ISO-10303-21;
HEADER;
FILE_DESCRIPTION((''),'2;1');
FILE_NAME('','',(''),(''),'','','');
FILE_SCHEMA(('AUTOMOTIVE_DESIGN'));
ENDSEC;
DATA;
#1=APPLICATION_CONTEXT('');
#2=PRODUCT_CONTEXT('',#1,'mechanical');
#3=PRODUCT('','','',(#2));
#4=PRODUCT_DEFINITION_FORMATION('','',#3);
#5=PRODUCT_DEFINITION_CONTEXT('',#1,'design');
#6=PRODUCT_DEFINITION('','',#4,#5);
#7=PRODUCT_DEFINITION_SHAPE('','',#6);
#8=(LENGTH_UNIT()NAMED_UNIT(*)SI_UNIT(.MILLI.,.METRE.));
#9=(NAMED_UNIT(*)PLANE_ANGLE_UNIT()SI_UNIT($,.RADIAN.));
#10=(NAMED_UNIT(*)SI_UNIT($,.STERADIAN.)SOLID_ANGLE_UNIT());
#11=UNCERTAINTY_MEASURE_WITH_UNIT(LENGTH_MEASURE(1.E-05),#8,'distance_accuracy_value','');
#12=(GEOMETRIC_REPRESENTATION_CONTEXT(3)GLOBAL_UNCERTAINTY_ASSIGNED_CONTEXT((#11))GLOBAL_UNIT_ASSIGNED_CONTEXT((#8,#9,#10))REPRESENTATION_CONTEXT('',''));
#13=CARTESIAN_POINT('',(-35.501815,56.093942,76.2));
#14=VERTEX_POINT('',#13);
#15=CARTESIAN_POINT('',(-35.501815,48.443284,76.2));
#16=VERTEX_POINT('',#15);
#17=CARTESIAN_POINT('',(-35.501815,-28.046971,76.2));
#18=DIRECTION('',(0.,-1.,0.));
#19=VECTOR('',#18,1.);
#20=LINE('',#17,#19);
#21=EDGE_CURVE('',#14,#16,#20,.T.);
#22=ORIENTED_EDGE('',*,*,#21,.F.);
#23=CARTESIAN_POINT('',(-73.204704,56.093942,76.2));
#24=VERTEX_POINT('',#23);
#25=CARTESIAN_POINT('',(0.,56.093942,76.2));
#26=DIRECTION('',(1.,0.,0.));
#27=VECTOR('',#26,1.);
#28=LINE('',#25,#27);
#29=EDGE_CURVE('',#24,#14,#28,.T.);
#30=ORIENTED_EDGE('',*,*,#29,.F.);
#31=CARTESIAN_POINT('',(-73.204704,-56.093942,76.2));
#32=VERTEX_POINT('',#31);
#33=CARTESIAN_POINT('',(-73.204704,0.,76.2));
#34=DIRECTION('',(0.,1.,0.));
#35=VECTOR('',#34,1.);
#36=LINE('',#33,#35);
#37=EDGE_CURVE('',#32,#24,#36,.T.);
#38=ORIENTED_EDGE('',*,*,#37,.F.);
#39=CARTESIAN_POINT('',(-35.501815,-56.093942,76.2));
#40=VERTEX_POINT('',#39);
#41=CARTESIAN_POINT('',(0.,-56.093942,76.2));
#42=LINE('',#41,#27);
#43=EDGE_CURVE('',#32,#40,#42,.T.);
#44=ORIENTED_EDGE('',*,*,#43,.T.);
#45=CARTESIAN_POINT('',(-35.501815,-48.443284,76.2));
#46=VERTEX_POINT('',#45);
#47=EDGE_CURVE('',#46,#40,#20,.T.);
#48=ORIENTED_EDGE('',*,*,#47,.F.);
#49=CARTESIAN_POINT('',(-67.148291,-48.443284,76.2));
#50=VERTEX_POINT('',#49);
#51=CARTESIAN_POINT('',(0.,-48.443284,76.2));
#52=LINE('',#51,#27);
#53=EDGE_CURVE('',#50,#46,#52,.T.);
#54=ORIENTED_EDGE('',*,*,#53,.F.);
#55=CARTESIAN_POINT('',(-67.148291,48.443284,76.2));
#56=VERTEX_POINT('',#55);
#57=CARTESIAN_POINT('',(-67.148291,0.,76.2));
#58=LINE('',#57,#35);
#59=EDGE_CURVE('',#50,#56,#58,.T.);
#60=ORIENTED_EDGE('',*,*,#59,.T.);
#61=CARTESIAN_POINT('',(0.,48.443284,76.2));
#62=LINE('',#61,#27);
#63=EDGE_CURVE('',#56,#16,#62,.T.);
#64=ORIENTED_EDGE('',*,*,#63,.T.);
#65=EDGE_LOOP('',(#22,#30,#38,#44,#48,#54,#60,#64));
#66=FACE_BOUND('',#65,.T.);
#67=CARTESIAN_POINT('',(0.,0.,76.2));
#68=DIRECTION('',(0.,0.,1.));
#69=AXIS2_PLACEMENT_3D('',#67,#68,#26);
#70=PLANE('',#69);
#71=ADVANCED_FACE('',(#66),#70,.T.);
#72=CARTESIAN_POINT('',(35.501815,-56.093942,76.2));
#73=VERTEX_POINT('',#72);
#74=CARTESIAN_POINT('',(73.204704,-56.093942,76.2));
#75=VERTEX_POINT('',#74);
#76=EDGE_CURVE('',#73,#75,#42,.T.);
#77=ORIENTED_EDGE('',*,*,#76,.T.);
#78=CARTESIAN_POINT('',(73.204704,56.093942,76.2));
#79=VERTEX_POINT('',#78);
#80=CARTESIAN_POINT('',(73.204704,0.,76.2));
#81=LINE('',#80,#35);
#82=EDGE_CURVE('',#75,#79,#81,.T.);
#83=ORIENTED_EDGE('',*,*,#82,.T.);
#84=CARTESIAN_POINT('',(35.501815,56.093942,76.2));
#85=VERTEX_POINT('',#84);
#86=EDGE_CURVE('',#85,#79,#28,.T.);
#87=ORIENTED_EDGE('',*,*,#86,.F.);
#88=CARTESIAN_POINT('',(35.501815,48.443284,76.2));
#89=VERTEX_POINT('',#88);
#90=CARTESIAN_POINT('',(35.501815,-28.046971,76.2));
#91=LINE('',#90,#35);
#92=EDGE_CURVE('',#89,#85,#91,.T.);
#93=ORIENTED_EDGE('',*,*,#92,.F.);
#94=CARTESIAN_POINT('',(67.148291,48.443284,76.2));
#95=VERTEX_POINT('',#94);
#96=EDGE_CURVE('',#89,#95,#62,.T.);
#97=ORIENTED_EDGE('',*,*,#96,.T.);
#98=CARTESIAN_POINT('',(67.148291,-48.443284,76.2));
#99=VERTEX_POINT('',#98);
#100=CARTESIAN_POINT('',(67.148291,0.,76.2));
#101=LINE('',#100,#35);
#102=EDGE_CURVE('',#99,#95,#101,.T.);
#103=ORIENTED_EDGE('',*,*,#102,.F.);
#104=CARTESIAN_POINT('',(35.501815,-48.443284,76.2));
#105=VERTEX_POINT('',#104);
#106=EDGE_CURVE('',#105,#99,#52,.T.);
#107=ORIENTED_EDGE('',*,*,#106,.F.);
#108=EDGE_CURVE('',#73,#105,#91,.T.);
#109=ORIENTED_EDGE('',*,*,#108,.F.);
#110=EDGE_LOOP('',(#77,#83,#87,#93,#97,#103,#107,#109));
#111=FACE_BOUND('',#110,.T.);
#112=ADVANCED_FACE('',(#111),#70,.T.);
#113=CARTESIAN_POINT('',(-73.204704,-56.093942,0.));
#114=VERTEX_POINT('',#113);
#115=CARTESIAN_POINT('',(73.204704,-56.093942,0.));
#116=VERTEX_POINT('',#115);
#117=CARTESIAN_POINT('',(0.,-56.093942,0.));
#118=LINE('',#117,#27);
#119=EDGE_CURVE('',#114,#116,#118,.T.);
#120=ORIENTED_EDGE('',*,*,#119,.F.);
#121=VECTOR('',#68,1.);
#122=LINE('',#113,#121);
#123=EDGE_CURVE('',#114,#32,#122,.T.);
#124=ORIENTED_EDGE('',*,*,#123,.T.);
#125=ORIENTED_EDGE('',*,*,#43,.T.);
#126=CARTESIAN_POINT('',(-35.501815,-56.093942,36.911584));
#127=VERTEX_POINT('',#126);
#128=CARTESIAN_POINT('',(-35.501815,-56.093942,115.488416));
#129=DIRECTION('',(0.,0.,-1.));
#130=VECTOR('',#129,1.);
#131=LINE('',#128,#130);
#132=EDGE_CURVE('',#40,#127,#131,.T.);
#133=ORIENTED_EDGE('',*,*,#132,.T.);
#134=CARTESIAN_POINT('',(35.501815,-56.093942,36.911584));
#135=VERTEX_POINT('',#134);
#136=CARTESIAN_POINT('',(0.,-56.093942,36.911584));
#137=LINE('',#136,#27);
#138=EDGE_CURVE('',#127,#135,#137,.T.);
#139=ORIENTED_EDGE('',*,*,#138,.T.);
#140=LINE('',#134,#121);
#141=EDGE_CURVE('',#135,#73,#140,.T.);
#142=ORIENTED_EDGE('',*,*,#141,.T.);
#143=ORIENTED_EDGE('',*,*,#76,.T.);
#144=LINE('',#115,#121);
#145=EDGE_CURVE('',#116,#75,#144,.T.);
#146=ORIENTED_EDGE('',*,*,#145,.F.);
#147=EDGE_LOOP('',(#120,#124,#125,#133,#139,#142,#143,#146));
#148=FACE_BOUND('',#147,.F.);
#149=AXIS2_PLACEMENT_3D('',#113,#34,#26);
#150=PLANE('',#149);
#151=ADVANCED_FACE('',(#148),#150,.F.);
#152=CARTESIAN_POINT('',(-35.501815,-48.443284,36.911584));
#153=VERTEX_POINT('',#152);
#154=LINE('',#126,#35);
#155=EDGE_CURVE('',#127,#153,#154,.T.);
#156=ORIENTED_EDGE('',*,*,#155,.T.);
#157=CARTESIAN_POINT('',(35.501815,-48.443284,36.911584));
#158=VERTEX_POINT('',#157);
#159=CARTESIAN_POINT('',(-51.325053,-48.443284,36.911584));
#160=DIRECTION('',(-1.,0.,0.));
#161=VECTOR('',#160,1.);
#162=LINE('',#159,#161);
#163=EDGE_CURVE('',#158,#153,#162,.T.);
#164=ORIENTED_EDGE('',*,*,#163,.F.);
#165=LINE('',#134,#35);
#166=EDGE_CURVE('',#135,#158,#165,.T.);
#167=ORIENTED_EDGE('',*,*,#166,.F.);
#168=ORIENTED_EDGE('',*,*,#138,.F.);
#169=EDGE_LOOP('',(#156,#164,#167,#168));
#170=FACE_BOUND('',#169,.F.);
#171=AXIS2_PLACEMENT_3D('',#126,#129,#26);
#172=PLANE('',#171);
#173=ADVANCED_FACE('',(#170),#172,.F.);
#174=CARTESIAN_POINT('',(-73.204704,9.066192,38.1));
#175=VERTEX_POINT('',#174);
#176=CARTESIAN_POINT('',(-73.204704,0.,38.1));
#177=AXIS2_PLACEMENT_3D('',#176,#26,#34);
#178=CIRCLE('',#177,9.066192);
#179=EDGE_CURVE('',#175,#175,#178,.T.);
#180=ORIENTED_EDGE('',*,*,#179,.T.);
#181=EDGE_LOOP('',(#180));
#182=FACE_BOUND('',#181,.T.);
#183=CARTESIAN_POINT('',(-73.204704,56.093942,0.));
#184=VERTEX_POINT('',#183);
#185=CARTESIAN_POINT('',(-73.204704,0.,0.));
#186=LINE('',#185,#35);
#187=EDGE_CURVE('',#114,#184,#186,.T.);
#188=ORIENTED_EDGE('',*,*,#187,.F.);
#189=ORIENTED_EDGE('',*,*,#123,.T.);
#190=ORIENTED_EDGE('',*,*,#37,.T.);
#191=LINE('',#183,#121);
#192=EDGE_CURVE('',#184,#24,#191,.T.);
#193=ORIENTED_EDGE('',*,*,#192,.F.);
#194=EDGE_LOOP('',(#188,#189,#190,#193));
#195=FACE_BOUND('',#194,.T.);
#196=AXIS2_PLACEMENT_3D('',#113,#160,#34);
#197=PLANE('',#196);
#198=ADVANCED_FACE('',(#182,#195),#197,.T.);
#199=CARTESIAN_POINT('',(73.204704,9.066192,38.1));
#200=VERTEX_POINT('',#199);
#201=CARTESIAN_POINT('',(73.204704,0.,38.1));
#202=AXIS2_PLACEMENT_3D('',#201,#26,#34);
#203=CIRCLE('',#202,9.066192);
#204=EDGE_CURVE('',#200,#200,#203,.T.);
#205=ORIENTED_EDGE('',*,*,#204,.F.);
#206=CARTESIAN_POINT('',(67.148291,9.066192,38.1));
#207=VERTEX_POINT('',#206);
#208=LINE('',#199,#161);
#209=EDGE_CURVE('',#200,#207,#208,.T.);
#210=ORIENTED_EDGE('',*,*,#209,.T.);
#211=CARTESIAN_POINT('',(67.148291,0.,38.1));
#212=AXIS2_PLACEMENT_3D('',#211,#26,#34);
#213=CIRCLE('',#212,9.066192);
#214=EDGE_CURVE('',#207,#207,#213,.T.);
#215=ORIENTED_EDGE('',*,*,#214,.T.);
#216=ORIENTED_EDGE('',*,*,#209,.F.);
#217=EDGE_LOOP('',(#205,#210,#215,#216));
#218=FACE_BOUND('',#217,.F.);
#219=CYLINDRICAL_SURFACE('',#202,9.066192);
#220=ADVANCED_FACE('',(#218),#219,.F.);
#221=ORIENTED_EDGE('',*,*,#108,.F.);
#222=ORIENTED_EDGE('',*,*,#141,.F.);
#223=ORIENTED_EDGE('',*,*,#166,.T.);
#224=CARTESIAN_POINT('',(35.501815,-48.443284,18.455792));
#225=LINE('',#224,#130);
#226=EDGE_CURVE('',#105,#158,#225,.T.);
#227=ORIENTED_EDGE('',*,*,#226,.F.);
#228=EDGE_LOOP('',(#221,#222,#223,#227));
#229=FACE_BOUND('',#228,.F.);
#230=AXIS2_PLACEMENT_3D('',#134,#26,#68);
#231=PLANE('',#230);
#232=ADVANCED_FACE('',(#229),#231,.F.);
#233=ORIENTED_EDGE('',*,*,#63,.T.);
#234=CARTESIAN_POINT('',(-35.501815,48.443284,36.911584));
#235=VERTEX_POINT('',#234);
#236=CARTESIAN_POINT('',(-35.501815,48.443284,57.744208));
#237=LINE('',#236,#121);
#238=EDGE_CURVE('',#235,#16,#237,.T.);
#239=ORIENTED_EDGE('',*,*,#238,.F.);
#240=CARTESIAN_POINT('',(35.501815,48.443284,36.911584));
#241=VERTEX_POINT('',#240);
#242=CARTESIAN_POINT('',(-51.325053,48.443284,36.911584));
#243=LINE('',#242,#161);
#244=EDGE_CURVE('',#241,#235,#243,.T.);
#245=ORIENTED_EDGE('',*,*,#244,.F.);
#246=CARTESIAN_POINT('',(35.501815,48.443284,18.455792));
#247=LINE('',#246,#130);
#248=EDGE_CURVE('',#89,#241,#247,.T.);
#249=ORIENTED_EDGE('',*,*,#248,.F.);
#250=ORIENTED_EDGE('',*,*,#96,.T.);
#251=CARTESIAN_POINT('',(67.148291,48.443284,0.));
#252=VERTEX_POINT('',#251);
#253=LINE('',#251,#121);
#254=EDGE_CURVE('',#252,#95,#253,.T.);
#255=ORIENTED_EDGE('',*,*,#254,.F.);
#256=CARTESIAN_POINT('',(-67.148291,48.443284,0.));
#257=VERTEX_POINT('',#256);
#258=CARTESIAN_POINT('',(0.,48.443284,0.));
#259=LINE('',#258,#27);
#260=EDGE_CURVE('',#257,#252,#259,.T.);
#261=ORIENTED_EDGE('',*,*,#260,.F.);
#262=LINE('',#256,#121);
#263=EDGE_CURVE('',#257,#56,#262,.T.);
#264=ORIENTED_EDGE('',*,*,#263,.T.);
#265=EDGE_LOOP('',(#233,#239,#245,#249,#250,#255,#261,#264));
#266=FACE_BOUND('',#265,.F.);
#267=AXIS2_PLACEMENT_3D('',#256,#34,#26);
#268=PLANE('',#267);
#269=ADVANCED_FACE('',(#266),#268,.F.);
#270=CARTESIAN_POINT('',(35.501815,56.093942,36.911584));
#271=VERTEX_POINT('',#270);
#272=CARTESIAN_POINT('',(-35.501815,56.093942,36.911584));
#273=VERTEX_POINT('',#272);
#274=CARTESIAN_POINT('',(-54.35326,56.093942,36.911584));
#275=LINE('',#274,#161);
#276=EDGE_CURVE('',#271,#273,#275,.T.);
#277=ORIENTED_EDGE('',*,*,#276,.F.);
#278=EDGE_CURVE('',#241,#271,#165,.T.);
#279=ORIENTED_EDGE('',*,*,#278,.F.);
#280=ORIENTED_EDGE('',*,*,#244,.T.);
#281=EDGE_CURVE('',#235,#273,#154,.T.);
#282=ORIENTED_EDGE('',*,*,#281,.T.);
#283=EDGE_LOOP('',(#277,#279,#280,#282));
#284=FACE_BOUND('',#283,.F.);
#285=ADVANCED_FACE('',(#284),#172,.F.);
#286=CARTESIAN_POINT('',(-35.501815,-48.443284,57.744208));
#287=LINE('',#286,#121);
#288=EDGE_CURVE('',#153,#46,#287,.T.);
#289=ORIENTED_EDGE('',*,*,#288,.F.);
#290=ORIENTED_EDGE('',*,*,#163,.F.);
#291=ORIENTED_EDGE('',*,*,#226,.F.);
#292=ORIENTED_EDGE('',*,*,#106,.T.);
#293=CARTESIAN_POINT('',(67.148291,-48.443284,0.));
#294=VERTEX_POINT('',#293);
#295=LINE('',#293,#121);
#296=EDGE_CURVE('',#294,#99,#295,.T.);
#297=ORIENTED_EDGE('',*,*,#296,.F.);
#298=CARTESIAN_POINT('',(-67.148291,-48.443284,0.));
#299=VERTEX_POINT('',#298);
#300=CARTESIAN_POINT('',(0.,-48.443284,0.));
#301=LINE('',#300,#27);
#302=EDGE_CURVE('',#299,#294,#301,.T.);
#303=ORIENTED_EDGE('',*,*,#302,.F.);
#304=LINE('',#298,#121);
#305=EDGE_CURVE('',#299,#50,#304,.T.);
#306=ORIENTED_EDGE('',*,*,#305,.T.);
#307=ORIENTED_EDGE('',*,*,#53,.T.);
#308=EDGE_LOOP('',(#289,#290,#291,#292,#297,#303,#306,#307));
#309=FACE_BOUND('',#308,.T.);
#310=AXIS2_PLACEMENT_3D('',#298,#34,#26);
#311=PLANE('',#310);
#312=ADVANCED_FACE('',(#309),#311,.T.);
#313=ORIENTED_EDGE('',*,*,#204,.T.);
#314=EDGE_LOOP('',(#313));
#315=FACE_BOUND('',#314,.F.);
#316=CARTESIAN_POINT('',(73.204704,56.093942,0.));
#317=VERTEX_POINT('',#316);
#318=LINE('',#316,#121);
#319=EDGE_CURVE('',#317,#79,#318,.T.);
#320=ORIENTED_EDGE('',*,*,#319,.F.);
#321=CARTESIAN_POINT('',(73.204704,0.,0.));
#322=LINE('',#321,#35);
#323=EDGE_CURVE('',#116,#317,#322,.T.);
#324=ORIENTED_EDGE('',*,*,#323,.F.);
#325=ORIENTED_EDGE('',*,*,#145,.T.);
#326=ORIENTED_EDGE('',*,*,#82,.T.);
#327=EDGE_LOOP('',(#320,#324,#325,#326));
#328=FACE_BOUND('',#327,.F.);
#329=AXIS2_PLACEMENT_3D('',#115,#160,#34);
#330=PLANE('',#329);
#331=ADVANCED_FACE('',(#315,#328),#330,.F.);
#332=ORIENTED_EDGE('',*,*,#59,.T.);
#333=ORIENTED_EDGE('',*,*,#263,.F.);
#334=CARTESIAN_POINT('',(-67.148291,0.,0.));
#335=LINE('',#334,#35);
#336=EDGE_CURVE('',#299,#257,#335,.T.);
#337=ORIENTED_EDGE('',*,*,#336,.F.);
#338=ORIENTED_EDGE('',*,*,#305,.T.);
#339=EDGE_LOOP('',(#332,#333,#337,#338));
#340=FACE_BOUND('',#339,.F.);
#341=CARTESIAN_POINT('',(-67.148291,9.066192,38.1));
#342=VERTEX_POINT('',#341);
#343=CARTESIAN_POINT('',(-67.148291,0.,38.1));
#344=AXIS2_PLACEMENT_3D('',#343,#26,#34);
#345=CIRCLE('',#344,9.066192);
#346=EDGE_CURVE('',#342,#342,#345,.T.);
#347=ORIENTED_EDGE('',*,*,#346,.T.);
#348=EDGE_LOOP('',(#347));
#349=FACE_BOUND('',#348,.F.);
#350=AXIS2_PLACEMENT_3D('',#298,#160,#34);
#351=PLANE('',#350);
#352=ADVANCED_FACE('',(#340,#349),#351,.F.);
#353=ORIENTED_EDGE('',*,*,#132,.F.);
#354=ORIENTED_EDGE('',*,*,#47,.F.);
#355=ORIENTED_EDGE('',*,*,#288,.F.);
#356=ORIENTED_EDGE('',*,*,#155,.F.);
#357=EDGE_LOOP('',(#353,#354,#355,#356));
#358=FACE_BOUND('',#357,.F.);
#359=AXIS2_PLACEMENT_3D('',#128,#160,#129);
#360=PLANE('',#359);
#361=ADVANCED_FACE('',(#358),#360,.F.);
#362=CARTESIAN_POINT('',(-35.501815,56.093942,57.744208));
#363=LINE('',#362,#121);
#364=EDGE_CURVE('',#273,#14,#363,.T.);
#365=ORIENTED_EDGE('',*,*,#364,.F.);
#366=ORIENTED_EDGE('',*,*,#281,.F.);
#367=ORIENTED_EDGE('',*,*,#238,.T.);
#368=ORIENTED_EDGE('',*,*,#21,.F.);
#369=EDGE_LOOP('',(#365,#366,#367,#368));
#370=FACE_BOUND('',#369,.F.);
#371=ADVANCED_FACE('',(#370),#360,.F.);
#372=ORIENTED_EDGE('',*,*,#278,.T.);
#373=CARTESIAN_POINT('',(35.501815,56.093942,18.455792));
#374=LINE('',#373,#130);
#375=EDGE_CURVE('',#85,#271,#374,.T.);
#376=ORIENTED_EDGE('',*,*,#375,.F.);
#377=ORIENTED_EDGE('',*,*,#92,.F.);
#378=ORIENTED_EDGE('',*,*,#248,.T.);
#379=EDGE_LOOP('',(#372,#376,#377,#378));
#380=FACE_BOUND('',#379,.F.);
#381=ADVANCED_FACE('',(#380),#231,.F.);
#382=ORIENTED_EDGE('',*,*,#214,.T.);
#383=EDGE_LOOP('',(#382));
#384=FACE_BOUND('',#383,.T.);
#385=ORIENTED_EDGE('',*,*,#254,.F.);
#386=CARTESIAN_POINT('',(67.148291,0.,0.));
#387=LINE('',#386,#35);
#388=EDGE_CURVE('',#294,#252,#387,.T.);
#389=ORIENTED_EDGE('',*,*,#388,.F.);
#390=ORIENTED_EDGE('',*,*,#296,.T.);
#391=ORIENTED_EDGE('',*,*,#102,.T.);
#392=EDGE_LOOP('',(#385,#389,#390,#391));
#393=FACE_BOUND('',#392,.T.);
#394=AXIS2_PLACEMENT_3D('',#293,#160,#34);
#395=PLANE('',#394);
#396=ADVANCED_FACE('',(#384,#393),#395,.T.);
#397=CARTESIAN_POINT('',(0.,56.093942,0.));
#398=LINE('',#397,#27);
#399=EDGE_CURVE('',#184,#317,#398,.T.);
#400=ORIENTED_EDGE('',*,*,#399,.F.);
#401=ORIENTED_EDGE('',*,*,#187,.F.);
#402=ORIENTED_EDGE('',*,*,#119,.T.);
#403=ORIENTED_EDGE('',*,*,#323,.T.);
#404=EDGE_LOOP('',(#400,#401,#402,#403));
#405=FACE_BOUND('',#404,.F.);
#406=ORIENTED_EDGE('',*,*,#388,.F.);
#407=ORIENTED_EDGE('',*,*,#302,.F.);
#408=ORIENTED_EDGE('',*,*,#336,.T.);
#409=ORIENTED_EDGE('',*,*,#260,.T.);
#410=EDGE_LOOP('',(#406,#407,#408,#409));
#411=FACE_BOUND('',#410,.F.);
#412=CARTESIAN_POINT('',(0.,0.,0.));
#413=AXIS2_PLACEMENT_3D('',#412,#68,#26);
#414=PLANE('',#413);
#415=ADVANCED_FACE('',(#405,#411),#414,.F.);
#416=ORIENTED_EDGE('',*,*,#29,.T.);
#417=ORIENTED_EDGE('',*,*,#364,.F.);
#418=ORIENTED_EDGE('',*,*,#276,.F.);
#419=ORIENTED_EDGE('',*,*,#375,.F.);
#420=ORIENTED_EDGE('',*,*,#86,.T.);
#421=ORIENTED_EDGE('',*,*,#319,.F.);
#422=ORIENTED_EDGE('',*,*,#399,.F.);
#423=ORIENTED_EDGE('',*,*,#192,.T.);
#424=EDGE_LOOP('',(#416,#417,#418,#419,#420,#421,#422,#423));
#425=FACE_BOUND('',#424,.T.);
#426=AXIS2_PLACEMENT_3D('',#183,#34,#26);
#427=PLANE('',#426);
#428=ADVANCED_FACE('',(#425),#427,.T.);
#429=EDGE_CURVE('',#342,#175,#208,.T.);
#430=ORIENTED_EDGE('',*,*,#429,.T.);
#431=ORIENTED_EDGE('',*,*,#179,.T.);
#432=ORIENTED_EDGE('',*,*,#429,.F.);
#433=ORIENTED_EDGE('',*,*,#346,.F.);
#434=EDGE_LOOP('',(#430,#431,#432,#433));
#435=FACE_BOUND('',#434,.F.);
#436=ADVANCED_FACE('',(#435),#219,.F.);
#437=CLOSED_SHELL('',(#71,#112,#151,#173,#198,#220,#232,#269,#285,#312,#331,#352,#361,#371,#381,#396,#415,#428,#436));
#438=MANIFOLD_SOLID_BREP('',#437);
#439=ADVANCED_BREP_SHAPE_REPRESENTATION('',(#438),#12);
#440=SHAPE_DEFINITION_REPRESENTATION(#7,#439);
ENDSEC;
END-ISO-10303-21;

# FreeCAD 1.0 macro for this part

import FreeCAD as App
import Part
import Sketcher
Q = App.Units.Quantity

doc = App.newDocument("Part")
params = doc.addObject("Spreadsheet::Sheet", "Params")
for row, (alias, value) in enumerate([
    ("pad1_length", "3 in"),
], start=1):
    params.set(f"A{row}", alias)
    params.set(f"B{row}", "=" + value)
    params.setAlias(f"B{row}", alias)

body = doc.addObject("PartDesign::Body", "Body")

# Sketch on XY plane
sketch1 = doc.addObject("Sketcher::SketchObject", "Sketch")
body.addObject(sketch1)
sketch1.AttachmentSupport = (doc.XY_Plane, [""])
sketch1.MapMode = "FlatFace"
sketch1.addGeometry([
    Part.LineSegment(App.Vector(-73.204704, 56.093942, 0), App.Vector(-73.204704, -56.093942, 0)),  # 0
    Part.LineSegment(App.Vector(-73.204704, -56.093942, 0), App.Vector(73.204704, -56.093942, 0)),  # 1
    Part.LineSegment(App.Vector(73.204704, -56.093942, 0), App.Vector(73.204704, 56.093942, 0)),  # 2
    Part.LineSegment(App.Vector(73.204704, 56.093942, 0), App.Vector(-73.204704, 56.093942, 0)),  # 3
    Part.LineSegment(App.Vector(67.148291, -48.443284, 0), App.Vector(-67.148291, -48.443284, 0)),  # 4
    Part.LineSegment(App.Vector(-67.148291, -48.443284, 0), App.Vector(-67.148291, 48.443284, 0)),  # 5
    Part.LineSegment(App.Vector(-67.148291, 48.443284, 0), App.Vector(67.148291, 48.443284, 0)),  # 6
    Part.LineSegment(App.Vector(67.148291, 48.443284, 0), App.Vector(67.148291, -48.443284, 0)),  # 7
], False)
sketch1.addConstraint([
    Sketcher.Constraint("Coincident", 0, 2, 1, 1),
    Sketcher.Constraint("Coincident", 1, 2, 2, 1),
    Sketcher.Constraint("Coincident", 2, 2, 3, 1),
    Sketcher.Constraint("Coincident", 3, 2, 0, 1),
    Sketcher.Constraint("Coincident", 4, 2, 5, 1),
    Sketcher.Constraint("Coincident", 5, 2, 6, 1),
    Sketcher.Constraint("Coincident", 6, 2, 7, 1),
    Sketcher.Constraint("Coincident", 7, 2, 4, 1),
    Sketcher.Constraint("Vertical", 0),
    Sketcher.Constraint("Horizontal", 1),
    Sketcher.Constraint("Vertical", 2),
    Sketcher.Constraint("Horizontal", 3),
    Sketcher.Constraint("Horizontal", 4),
    Sketcher.Constraint("Vertical", 5),
    Sketcher.Constraint("Horizontal", 6),
    Sketcher.Constraint("Vertical", 7),
    Sketcher.Constraint("Symmetric", 0, 2, 2, 2, -1, 1),
    Sketcher.Constraint("Symmetric", 4, 2, 6, 2, -1, 1),
    Sketcher.Constraint("DistanceX", 1, 1, 1, 2, Q("146.409408 mm")),
    Sketcher.Constraint("DistanceX", 4, 2, 4, 1, Q("134.296582 mm")),
    Sketcher.Constraint("DistanceY", 0, 2, 0, 1, Q("112.187884 mm")),
    Sketcher.Constraint("DistanceY", 5, 1, 5, 2, Q("96.886568 mm")),
])
pad1 = doc.addObject("PartDesign::Pad", "Pad")
body.addObject(pad1)
pad1.Profile = sketch1
pad1.setExpression("Length", "Params.pad1_length")

# Sketch on XZ plane
sketch2 = doc.addObject("Sketcher::SketchObject", "Sketch001")
body.addObject(sketch2)
sketch2.AttachmentSupport = (doc.XZ_Plane, [""])
sketch2.MapMode = "FlatFace"
sketch2.AttachmentOffset = App.Placement(App.Vector(0, 0, 56.093942), App.Rotation())
sketch2.addGeometry([
    Part.LineSegment(App.Vector(-35.501815, 115.488416, 0), App.Vector(-35.501815, 36.911584, 0)),
    Part.LineSegment(App.Vector(-35.501815, 36.911584, 0), App.Vector(35.501815, 36.911584, 0)),
    Part.LineSegment(App.Vector(35.501815, 36.911584, 0), App.Vector(35.501815, 115.488416, 0)),
    Part.LineSegment(App.Vector(35.501815, 115.488416, 0), App.Vector(-35.501815, 115.488416, 0)),
], False)
sketch2.addConstraint([
    Sketcher.Constraint("Coincident", 0, 2, 1, 1),
    Sketcher.Constraint("Coincident", 1, 2, 2, 1),
    Sketcher.Constraint("Coincident", 2, 2, 3, 1),
    Sketcher.Constraint("Coincident", 3, 2, 0, 1),
    Sketcher.Constraint("Vertical", 0),
    Sketcher.Constraint("Horizontal", 1),
    Sketcher.Constraint("Vertical", 2),
    Sketcher.Constraint("Horizontal", 3),
    Sketcher.Constraint("DistanceX", 1, 1, 1, 2, Q("71.00363 mm")),
    Sketcher.Constraint("DistanceY", 0, 2, 0, 1, Q("78.576832 mm")),
    Sketcher.Constraint("DistanceX", 0, 2, -1, 1, Q("35.501815 mm")),
    Sketcher.Constraint("DistanceY", -1, 1, 0, 2, Q("36.911584 mm")),
])
pocket1 = doc.addObject("PartDesign::Pocket", "Pocket")
body.addObject(pocket1)
pocket1.Profile = sketch2
pocket1.Type = "ThroughAll"

# Sketch on YZ plane
sketch3 = doc.addObject("Sketcher::SketchObject", "Sketch002")
body.addObject(sketch3)
sketch3.AttachmentSupport = (doc.YZ_Plane, [""])
sketch3.MapMode = "FlatFace"
sketch3.AttachmentOffset = App.Placement(App.Vector(0, 0, 73.204704), App.Rotation())
sketch3.addGeometry(Part.Circle(App.Vector(0, 38.1, 0), App.Vector(0, 0, 1), 9.066192), False)
sketch3.addConstraint([
    Sketcher.Constraint("PointOnObject", 0, 3, -2),
    Sketcher.Constraint("DistanceY", -1, 1, 0, 3, Q("1.5 in")),
    Sketcher.Constraint("Diameter", 0, Q("18.132384 mm")),
])
pocket2 = doc.addObject("PartDesign::Pocket", "Pocket001")
body.addObject(pocket2)
pocket2.Profile = sketch3
pocket2.Type = "ThroughAll"

doc.recompute()
